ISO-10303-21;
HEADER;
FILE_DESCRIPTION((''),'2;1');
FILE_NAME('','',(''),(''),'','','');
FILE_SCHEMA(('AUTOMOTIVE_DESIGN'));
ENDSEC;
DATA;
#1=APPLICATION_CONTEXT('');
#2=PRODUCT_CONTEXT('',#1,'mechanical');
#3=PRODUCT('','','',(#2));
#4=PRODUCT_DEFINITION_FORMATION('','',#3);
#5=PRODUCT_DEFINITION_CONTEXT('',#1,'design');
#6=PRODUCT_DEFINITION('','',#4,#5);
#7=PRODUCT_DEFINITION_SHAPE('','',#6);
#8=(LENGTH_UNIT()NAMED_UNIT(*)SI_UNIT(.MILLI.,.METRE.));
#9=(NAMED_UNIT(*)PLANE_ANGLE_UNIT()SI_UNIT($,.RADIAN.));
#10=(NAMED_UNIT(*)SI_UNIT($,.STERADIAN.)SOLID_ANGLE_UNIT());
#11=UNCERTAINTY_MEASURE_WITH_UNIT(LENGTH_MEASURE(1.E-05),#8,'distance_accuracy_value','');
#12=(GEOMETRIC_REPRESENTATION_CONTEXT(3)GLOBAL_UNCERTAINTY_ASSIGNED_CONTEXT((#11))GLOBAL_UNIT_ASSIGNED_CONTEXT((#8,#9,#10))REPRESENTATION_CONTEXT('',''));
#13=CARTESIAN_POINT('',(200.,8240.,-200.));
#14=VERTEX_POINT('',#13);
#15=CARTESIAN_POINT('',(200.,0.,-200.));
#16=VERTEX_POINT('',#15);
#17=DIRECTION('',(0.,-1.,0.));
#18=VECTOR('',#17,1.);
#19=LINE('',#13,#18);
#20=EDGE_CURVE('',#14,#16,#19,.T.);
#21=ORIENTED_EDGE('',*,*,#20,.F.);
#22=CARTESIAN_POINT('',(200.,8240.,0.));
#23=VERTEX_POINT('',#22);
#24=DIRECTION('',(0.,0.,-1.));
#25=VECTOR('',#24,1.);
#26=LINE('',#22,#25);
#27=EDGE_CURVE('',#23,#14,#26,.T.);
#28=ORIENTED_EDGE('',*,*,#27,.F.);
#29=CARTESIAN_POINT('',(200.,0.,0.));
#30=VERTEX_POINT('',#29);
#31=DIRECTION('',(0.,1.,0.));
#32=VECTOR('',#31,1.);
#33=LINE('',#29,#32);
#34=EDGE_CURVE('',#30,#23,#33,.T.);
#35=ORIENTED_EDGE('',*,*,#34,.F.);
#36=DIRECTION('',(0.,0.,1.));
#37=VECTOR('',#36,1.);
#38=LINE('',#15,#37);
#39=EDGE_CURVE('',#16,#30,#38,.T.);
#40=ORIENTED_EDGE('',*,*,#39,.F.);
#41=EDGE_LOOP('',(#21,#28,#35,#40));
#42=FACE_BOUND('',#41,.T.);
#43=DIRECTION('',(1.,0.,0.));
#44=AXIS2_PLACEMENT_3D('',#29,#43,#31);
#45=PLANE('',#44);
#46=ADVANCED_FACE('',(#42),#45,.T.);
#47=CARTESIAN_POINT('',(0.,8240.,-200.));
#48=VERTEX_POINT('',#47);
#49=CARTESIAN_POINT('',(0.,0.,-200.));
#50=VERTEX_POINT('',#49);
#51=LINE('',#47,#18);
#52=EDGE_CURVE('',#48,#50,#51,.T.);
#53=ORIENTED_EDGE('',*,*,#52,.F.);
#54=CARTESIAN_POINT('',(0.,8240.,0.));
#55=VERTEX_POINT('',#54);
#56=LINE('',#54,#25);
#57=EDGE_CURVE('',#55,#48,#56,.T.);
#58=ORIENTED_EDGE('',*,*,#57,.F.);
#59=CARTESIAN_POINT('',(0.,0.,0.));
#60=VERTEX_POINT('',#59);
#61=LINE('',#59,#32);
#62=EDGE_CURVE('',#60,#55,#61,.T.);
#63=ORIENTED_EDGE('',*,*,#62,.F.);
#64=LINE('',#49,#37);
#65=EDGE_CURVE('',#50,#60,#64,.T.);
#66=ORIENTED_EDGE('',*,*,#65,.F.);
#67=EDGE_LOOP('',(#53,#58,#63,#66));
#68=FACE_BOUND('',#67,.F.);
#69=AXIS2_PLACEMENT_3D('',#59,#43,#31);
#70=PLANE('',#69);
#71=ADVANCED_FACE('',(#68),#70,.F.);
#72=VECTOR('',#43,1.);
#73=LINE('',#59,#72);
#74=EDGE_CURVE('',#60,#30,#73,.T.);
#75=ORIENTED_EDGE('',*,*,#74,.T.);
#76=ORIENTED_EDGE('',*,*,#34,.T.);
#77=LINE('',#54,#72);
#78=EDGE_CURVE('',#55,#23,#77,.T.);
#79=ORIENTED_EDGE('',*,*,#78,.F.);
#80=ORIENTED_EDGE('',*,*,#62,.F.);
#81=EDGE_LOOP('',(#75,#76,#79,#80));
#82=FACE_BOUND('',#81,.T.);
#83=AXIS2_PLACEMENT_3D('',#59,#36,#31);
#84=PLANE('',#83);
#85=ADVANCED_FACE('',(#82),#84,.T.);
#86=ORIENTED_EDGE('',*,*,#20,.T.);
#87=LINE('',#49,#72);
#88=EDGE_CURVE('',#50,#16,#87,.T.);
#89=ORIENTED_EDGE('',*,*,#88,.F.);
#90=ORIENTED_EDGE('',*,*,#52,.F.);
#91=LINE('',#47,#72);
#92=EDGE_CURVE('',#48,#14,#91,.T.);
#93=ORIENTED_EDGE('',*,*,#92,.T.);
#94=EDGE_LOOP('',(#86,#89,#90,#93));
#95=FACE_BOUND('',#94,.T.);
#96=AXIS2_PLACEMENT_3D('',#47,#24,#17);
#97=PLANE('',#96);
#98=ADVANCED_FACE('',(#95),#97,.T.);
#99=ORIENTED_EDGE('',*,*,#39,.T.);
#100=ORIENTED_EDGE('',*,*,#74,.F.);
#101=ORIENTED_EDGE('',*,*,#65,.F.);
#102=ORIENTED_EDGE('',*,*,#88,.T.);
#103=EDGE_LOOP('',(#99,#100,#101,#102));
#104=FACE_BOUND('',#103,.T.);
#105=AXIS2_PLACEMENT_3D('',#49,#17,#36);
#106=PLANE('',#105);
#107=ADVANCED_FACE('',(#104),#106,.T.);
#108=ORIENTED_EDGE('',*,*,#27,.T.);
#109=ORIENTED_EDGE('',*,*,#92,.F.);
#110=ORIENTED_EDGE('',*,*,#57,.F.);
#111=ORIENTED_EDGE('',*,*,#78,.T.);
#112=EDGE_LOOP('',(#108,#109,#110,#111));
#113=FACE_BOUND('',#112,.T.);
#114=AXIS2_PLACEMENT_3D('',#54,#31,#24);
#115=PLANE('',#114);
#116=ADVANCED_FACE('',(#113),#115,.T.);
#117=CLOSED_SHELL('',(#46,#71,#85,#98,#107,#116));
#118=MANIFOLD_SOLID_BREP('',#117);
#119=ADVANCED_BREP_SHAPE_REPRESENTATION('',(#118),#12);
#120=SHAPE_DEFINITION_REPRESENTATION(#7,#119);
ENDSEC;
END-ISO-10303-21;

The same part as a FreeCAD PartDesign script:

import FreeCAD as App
import Part
import Sketcher

doc = App.newDocument("Part")
body = doc.addObject("PartDesign::Body", "Body")

sketch1 = body.newObject("Sketcher::SketchObject", "Sketch")
sketch1.AttachmentSupport = (doc.getObject("YZ_Plane"), [""])
sketch1.MapMode = "FlatFace"
sketch1.addGeometry(Part.LineSegment(App.Vector(8240, 0, 0), App.Vector(0, 0, 0)), False)
sketch1.addGeometry(Part.LineSegment(App.Vector(0, 0, 0), App.Vector(0, -200, 0)), False)
sketch1.addGeometry(Part.LineSegment(App.Vector(0, -200, 0), App.Vector(8240, -200, 0)), False)
sketch1.addGeometry(Part.LineSegment(App.Vector(8240, -200, 0), App.Vector(8240, 0, 0)), False)
sketch1.addConstraint(Sketcher.Constraint("Coincident", 0, 2, 1, 1))
sketch1.addConstraint(Sketcher.Constraint("Coincident", 1, 2, 2, 1))
sketch1.addConstraint(Sketcher.Constraint("Coincident", 2, 2, 3, 1))
sketch1.addConstraint(Sketcher.Constraint("Coincident", 3, 2, 0, 1))
sketch1.addConstraint(Sketcher.Constraint("Horizontal", 0))
sketch1.addConstraint(Sketcher.Constraint("Vertical", 1))
sketch1.addConstraint(Sketcher.Constraint("Horizontal", 2))
sketch1.addConstraint(Sketcher.Constraint("Vertical", 3))
sketch1.addConstraint(Sketcher.Constraint("Coincident", 0, 2, -1, 1))
sketch1.addConstraint(Sketcher.Constraint("DistanceX", 0, 2, 0, 1, 8240.0))
sketch1.addConstraint(Sketcher.Constraint("DistanceY", 1, 2, 1, 1, 200.0))
pad1 = body.newObject("PartDesign::Pad", "Pad")
pad1.Profile = sketch1
pad1.Length = 200

doc.recompute()
